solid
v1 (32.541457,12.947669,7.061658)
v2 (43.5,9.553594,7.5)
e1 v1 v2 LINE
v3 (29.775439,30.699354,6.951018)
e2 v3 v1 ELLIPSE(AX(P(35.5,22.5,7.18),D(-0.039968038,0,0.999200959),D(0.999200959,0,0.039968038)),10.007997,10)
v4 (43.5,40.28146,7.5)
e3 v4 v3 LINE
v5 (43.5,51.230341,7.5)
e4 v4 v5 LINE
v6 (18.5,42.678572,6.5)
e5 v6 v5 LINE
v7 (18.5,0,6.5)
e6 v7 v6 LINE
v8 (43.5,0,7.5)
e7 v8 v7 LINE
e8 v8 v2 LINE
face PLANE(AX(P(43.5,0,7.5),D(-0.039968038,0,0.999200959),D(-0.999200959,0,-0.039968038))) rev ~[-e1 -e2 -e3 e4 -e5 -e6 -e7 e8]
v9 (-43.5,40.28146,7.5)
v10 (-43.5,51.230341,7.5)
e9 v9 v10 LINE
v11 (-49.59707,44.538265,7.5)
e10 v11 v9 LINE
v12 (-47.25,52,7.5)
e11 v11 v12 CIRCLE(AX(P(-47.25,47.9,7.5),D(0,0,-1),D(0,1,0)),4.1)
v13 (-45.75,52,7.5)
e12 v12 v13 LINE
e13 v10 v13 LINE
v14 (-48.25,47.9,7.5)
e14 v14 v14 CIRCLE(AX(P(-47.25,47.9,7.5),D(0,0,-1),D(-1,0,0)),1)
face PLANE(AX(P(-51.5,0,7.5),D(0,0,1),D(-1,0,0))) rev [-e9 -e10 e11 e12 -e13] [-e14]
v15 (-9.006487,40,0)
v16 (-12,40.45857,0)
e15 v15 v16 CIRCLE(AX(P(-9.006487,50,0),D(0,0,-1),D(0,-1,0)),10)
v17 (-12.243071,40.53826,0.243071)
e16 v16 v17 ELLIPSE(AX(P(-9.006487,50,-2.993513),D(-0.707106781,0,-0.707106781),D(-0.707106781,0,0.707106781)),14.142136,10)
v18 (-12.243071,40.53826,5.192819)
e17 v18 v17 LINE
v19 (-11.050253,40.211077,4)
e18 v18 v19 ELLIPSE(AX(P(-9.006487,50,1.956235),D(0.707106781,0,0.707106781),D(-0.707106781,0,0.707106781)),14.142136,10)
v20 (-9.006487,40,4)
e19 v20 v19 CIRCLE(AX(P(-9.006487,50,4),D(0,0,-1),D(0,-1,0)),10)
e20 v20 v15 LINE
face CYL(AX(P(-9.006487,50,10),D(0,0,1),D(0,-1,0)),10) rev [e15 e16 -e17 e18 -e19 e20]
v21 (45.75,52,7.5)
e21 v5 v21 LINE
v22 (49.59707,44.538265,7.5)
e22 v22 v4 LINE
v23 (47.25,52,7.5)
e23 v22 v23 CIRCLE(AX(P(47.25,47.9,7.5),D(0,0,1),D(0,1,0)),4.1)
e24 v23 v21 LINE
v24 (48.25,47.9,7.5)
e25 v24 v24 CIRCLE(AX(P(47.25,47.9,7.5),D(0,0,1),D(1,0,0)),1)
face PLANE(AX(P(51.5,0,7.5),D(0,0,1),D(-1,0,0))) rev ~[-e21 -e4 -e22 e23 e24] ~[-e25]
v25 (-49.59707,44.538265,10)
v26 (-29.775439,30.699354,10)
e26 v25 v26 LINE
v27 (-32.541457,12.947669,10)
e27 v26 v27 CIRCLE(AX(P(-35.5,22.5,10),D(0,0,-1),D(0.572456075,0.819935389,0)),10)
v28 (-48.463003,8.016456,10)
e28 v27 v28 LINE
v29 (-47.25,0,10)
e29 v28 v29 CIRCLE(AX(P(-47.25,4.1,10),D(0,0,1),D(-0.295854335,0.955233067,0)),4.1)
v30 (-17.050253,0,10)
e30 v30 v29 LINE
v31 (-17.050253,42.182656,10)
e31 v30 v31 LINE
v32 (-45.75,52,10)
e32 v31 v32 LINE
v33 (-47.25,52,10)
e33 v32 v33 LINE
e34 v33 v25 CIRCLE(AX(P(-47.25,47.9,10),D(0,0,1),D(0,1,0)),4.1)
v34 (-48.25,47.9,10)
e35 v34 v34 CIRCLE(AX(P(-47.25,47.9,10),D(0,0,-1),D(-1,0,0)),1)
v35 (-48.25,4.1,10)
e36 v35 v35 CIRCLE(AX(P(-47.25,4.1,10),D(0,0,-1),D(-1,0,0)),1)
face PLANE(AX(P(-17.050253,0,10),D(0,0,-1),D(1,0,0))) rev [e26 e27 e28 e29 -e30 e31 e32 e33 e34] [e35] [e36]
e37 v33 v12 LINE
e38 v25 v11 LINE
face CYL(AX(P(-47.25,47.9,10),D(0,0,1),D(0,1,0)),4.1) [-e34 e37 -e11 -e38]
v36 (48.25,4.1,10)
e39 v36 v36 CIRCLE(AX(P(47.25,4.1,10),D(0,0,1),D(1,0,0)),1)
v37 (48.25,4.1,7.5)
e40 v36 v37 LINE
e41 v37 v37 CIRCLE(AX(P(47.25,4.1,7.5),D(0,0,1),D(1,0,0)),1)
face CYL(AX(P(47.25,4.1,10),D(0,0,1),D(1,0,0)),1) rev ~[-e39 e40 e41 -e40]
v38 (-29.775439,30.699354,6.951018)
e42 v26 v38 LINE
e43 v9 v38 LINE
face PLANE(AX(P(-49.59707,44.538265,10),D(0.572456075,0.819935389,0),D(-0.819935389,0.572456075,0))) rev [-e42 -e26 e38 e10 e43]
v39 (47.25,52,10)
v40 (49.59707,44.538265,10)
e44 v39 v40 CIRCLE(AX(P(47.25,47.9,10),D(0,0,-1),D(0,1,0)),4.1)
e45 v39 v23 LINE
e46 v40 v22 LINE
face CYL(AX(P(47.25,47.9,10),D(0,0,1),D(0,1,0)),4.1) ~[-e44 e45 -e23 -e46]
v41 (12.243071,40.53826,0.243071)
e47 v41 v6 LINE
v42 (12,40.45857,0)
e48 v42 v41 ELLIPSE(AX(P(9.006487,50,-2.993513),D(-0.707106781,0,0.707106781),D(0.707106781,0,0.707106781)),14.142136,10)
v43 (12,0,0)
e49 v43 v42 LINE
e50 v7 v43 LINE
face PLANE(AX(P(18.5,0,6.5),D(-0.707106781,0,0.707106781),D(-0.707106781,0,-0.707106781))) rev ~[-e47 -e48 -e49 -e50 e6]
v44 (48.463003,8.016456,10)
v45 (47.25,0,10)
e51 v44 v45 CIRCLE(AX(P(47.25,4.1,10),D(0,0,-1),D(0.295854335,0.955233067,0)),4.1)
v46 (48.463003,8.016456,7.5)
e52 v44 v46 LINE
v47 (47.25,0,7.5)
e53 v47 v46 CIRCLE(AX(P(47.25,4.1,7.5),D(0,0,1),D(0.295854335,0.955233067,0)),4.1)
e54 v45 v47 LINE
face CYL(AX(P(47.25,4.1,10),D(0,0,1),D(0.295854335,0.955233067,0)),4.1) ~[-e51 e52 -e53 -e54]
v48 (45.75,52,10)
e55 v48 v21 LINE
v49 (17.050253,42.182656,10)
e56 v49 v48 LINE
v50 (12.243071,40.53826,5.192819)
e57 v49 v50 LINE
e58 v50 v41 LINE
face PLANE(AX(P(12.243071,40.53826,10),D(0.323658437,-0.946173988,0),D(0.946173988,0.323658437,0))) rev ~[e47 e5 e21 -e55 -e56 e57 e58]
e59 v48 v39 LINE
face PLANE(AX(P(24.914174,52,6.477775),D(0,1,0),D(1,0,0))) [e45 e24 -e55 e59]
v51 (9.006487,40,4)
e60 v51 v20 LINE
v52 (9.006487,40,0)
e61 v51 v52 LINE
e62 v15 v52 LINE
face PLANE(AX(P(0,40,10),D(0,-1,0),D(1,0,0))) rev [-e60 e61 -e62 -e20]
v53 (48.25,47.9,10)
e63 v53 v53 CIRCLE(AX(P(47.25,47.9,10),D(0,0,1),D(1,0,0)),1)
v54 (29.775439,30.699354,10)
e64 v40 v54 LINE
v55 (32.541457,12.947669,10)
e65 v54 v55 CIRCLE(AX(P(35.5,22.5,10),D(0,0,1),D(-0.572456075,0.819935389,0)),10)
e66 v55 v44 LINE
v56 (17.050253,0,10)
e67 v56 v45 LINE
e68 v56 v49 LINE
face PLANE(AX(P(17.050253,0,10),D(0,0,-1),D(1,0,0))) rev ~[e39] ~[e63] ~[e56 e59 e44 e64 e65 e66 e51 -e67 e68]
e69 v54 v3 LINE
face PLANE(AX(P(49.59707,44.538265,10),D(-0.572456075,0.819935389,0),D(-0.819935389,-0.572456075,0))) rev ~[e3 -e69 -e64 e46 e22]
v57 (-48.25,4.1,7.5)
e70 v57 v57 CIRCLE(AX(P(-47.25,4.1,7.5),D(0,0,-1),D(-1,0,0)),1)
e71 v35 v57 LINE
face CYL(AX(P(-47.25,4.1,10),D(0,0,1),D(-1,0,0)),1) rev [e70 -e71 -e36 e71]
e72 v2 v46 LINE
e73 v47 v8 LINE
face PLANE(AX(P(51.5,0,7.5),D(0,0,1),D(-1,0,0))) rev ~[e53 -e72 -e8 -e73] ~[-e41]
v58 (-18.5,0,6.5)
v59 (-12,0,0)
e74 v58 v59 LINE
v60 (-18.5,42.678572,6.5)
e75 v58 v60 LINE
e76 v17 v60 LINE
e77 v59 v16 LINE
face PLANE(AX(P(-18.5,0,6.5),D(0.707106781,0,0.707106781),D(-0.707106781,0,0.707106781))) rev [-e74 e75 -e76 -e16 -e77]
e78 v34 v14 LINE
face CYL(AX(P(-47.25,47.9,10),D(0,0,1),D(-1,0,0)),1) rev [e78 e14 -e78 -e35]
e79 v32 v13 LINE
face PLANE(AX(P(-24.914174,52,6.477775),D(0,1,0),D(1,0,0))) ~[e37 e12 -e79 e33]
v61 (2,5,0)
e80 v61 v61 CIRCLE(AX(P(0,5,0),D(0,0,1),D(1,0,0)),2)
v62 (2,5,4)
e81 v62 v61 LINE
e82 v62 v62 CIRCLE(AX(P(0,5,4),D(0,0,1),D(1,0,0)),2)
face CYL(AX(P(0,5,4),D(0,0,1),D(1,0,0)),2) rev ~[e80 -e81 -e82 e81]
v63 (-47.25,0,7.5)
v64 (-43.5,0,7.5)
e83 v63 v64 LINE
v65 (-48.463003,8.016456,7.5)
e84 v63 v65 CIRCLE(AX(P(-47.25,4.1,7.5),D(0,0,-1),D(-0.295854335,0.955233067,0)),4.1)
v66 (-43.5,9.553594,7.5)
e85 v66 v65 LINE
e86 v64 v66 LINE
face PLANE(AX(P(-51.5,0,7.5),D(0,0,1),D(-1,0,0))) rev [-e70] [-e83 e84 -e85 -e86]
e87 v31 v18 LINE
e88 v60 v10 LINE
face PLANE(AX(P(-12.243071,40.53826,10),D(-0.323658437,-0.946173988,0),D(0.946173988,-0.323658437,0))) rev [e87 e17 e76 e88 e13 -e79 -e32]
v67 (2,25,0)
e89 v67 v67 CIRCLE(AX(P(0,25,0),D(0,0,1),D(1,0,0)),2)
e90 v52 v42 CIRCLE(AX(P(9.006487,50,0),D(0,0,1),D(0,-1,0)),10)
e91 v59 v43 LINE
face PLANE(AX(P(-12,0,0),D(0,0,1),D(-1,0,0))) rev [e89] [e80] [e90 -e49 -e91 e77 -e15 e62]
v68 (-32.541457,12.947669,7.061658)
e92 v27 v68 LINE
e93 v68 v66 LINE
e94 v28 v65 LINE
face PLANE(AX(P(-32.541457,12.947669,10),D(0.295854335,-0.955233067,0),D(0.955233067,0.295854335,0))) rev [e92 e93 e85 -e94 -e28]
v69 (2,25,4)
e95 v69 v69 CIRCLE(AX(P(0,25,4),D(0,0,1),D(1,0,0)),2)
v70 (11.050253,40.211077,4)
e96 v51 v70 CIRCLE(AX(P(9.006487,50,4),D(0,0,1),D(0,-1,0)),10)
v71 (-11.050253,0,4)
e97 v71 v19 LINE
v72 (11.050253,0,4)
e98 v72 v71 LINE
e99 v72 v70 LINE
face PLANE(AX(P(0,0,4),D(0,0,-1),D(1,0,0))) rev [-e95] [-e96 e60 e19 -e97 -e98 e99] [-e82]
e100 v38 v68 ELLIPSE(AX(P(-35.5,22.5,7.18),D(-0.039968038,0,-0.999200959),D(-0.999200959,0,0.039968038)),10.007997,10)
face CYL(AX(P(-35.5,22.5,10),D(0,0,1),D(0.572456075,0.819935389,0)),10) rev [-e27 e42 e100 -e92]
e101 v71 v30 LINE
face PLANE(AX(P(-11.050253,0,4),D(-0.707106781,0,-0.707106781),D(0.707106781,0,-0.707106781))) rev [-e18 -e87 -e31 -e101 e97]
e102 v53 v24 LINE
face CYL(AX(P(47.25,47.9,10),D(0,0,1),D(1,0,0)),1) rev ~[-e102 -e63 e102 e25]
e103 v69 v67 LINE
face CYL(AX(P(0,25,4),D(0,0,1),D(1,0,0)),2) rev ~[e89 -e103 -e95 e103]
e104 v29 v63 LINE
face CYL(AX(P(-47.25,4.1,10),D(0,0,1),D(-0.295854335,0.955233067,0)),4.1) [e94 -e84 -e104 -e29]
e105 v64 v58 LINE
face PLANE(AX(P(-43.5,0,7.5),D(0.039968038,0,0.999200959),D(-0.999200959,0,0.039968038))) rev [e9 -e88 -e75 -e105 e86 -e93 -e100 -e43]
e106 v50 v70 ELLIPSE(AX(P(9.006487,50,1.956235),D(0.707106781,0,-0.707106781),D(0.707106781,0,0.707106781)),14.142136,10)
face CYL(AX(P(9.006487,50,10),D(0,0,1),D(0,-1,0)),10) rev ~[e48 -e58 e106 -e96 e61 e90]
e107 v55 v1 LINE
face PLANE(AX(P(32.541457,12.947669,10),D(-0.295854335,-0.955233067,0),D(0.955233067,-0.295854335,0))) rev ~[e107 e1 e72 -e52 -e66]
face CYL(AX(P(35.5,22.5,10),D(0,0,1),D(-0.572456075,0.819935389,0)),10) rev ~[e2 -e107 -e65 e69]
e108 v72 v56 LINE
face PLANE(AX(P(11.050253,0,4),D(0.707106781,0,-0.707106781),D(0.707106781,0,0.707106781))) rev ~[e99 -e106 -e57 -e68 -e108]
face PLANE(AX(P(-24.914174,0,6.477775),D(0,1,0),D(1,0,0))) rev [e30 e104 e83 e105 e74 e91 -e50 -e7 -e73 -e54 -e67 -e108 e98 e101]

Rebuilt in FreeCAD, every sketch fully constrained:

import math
import FreeCAD as App
import Part
import Sketcher

V = App.Vector
Q = App.Units.Quantity


def add_polygon(sketch, points):
    """Adds a closed chain of lines whose ends are joined by coincident constraints."""
    first, n = sketch.GeometryCount, len(points)
    for a, b in zip(points, points[1:] + points[:1]):
        sketch.addGeometry(Part.LineSegment(App.Vector(*a, 0), App.Vector(*b, 0)), False)
    for i in range(n):
        sketch.addConstraint(Sketcher.Constraint("Coincident", first + i, 2, first + (i + 1) % n, 1))

doc = App.newDocument("Part")
params = doc.addObject("Spreadsheet::Sheet", "Params")
for row, (alias, value) in enumerate([
    ("sketch1_width", "8 mm"),
    ("sketch1_width2", "12 mm"),
    ("sketch1_height", "4 mm"),
    ("sketch1_height2", "2.5 mm"),
    ("pad1_length", "52 mm"),
    ("sketch2_diameter", "2 mm"),
    ("sketch2_radius", "10 mm"),
    ("sketch2_radius2", "4.1 mm"),
    ("sketch2_height", "12 mm"),
    ("sketch2_height2", "52 mm"),
    ("sketch3_diameter", "4 mm"),
], start=1):
    params.set(f"A{row}", alias)
    params.set(f"B{row}", "=" + value)
    params.setAlias(f"B{row}", alias)

body = doc.addObject("PartDesign::Body", "Body")

sketch1 = body.newObject("Sketcher::SketchObject", "Sketch")
sketch1.AttachmentSupport = (doc.getObject("XZ_Plane"), [""])
sketch1.MapMode = "FlatFace"
add_polygon(sketch1, [(0, 0), (0, 4), (11.1, 4), (17.1, 10), (51.5, 10), (51.5, 7.5), (43.5, 7.5), (18.5, 6.5), (12, 0)])
sketch1.addConstraint(Sketcher.Constraint("Vertical", 0))
sketch1.addConstraint(Sketcher.Constraint("Horizontal", 1))
sketch1.addConstraint(Sketcher.Constraint("Horizontal", 3))
sketch1.addConstraint(Sketcher.Constraint("Vertical", 4))
sketch1.addConstraint(Sketcher.Constraint("Horizontal", 5))
sketch1.addConstraint(Sketcher.Constraint("Horizontal", 8))
sketch1.addConstraint(Sketcher.Constraint("Coincident", 8, 2, -1, 1))
sketch1.addConstraint(Sketcher.Constraint("Parallel", 2, 7))
sketch1.addConstraint(Sketcher.Constraint("DistanceX", 5, 2, 5, 1, 8.0))
sketch1.addConstraint(Sketcher.Constraint("DistanceX", 8, 2, 8, 1, 12.0))
sketch1.addConstraint(Sketcher.Constraint("DistanceY", 0, 1, 0, 2, 4.0))
sketch1.addConstraint(Sketcher.Constraint("Angle", 2, Q("45 deg")))
sketch1.addConstraint(Sketcher.Constraint("DistanceY", 4, 2, 4, 1, 2.5))
sketch1.addConstraint(Sketcher.Constraint("DistanceY", -1, 1, 2, 2, 10.0))
sketch1.addConstraint(Sketcher.Constraint("DistanceX", 6, 2, 5, 2, 25.0))
sketch1.addConstraint(Sketcher.Constraint("DistanceY", 6, 2, 5, 2, 1.0))
sketch1.addConstraint(Sketcher.Constraint("DistanceX", 1, 1, 1, 2, 11.050253))
sketch1.setExpression("Constraints[17]", "Params.sketch1_width")
sketch1.setExpression("Constraints[18]", "Params.sketch1_width2")
sketch1.setExpression("Constraints[19]", "Params.sketch1_height")
sketch1.setExpression("Constraints[21]", "Params.sketch1_height2")
pad1 = body.newObject("PartDesign::Pad", "Pad")
pad1.Profile = sketch1
pad1.setExpression("Length", "Params.pad1_length")
pad1.Reversed = True

sketch2 = body.newObject("Sketcher::SketchObject", "Sketch001")
sketch2.AttachmentSupport = (doc.getObject("XY_Plane"), [""])
sketch2.MapMode = "FlatFace"
sketch2.AttachmentOffset = App.Placement(V(0, 0, 10), App.Rotation())
sketch2.addGeometry(Part.Circle(V(47.2, 47.9, 0), V(0, 0, 1), 1), False)
sketch2.addGeometry(Part.Circle(V(47.2, 4.1, 0), V(0, 0, 1), 1), False)
sketch2.addGeometry(Part.LineSegment(V(45.8, 52, 0), V(0, 52, 0)), False)
sketch2.addGeometry(Part.LineSegment(V(0, 52, 0), V(0, 40, 0)), False)
sketch2.addGeometry(Part.LineSegment(V(0, 40, 0), V(9, 40, 0)), False)
sketch2.addGeometry(Part.ArcOfCircle(Part.Circle(V(9, 50, 0), V(0, 0, 1), 10), math.radians(-90), math.radians(-71.12)), False)
sketch2.addGeometry(Part.LineSegment(V(12.2, 40.5, 0), V(45.8, 52, 0)), False)
sketch2.addGeometry(Part.LineSegment(V(49.6, 44.5, 0), V(29.8, 30.7, 0)), False)
sketch2.addGeometry(Part.ArcOfCircle(Part.Circle(V(35.5, 22.5, 0), V(0, 0, 1), 10), math.radians(125), math.radians(253)), False)
sketch2.addGeometry(Part.LineSegment(V(32.5, 12.9, 0), V(48.5, 8, 0)), False)
sketch2.addGeometry(Part.ArcOfCircle(Part.Circle(V(47.2, 4.1, 0), V(0, 0, 1), 4.1), math.radians(-90), math.radians(73)), False)
sketch2.addGeometry(Part.LineSegment(V(47.2, 0, 0), V(51.5, 0, 0)), False)
sketch2.addGeometry(Part.LineSegment(V(51.5, 0, 0), V(51.5, 52, 0)), False)
sketch2.addGeometry(Part.LineSegment(V(51.5, 52, 0), V(47.2, 52, 0)), False)
sketch2.addGeometry(Part.ArcOfCircle(Part.Circle(V(47.2, 47.9, 0), V(0, 0, 1), 4.1), math.radians(-55), math.radians(90)), False)
sketch2.addConstraint(Sketcher.Constraint("Coincident", 2, 2, 3, 1))
sketch2.addConstraint(Sketcher.Constraint("Coincident", 3, 2, 4, 1))
sketch2.addConstraint(Sketcher.Constraint("Tangent", 4, 2, 5, 1))
sketch2.addConstraint(Sketcher.Constraint("Tangent", 5, 2, 6, 1))
sketch2.addConstraint(Sketcher.Constraint("Coincident", 6, 2, 2, 1))
sketch2.addConstraint(Sketcher.Constraint("Tangent", 7, 2, 8, 1))
sketch2.addConstraint(Sketcher.Constraint("Tangent", 8, 2, 9, 1))
sketch2.addConstraint(Sketcher.Constraint("Tangent", 9, 2, 10, 2))
sketch2.addConstraint(Sketcher.Constraint("Tangent", 10, 1, 11, 1))
sketch2.addConstraint(Sketcher.Constraint("Coincident", 11, 2, 12, 1))
sketch2.addConstraint(Sketcher.Constraint("Coincident", 12, 2, 13, 1))
sketch2.addConstraint(Sketcher.Constraint("Tangent", 13, 2, 14, 2))
sketch2.addConstraint(Sketcher.Constraint("Tangent", 14, 1, 7, 1))
sketch2.addConstraint(Sketcher.Constraint("Horizontal", 2))
sketch2.addConstraint(Sketcher.Constraint("Vertical", 3))
sketch2.addConstraint(Sketcher.Constraint("Horizontal", 4))
sketch2.addConstraint(Sketcher.Constraint("Horizontal", 11))
sketch2.addConstraint(Sketcher.Constraint("Vertical", 12))
sketch2.addConstraint(Sketcher.Constraint("Horizontal", 13))
sketch2.addConstraint(Sketcher.Constraint("Coincident", 10, 3, 1, 3))
sketch2.addConstraint(Sketcher.Constraint("Coincident", 14, 3, 0, 3))
sketch2.addConstraint(Sketcher.Constraint("Equal", 0, 1))
sketch2.addConstraint(Sketcher.Constraint("Equal", 5, 8))
sketch2.addConstraint(Sketcher.Constraint("Equal", 10, 14))
sketch2.addConstraint(Sketcher.Constraint("PointOnObject", 2, 2, -2))
sketch2.addConstraint(Sketcher.Constraint("PointOnObject", 10, 1, -1))
sketch2.addConstraint(Sketcher.Constraint("Horizontal", 6, 2, 12, 2))
sketch2.addConstraint(Sketcher.Constraint("Vertical", 0, 3, 1, 3))
sketch2.addConstraint(Sketcher.Constraint("Diameter", 0, 2.0))
sketch2.addConstraint(Sketcher.Constraint("Radius", 5, 10.0))
sketch2.addConstraint(Sketcher.Constraint("Radius", 10, 4.1))
sketch2.addConstraint(Sketcher.Constraint("DistanceY", 3, 2, 3, 1, 12.0))
sketch2.addConstraint(Sketcher.Constraint("DistanceY", 12, 1, 12, 2, 52.0))
sketch2.addConstraint(Sketcher.Constraint("DistanceX", 8, 3, 12, 2, 16.0))
sketch2.addConstraint(Sketcher.Constraint("DistanceX", 2, 2, 2, 1, 45.75))
sketch2.addConstraint(Sketcher.Constraint("DistanceX", 11, 1, 11, 2, 4.25))
sketch2.addConstraint(Sketcher.Constraint("DistanceX", -1, 1, 8, 3, 35.5))
sketch2.addConstraint(Sketcher.Constraint("DistanceY", -1, 1, 8, 3, 22.5))
sketch2.addConstraint(Sketcher.Constraint("DistanceX", 4, 1, 4, 2, 9.006487))
sketch2.setExpression("Constraints[28]", "Params.sketch2_diameter")
sketch2.setExpression("Constraints[29]", "Params.sketch2_radius")
sketch2.setExpression("Constraints[30]", "Params.sketch2_radius2")
sketch2.setExpression("Constraints[31]", "Params.sketch2_height")
sketch2.setExpression("Constraints[32]", "Params.sketch2_height2")
pocket1 = body.newObject("PartDesign::Pocket", "Pocket")
pocket1.Profile = sketch2
pocket1.Type = "ThroughAll"
body2 = doc.addObject("PartDesign::Body", "Body001")
doc.recompute()

body2.BaseFeature = body
doc.recompute()

mirroring = doc.addObject("Part::Mirroring", "Mirroring")
mirroring.Source = body
mirroring.Base = V(0, 52, 0)
mirroring.Normal = V(1, 0, 0)
body3 = doc.addObject("PartDesign::Body", "Body002")
body3.BaseFeature = mirroring
boolean = body2.newObject("PartDesign::Boolean", "Boolean")
boolean.Type = "Fuse"
boolean.addObjects([body3])
doc.recompute()

sketch3 = body2.newObject("Sketcher::SketchObject", "Sketch002")
sketch3.AttachmentSupport = (doc.getObject("XY_Plane001"), [""])
sketch3.MapMode = "FlatFace"
sketch3.AttachmentOffset = App.Placement(V(0, 0, 4), App.Rotation())
sketch3.addGeometry(Part.Circle(V(0, 5, 0), V(0, 0, 1), 2), False)
sketch3.addGeometry(Part.Circle(V(0, 25, 0), V(0, 0, 1), 2), False)
sketch3.addConstraint(Sketcher.Constraint("Equal", 0, 1))
sketch3.addConstraint(Sketcher.Constraint("PointOnObject", 0, 3, -2))
sketch3.addConstraint(Sketcher.Constraint("PointOnObject", 1, 3, -2))
sketch3.addConstraint(Sketcher.Constraint("Diameter", 0, 4.0))
sketch3.addConstraint(Sketcher.Constraint("DistanceY", -1, 1, 0, 3, 5.0))
sketch3.addConstraint(Sketcher.Constraint("DistanceY", -1, 1, 1, 3, 25.0))
sketch3.setExpression("Constraints[3]", "Params.sketch3_diameter")
pocket2 = body2.newObject("PartDesign::Pocket", "Pocket001")
pocket2.Profile = sketch3
pocket2.Type = "ThroughAll"
mirroring.Visibility = False

doc.recompute()
